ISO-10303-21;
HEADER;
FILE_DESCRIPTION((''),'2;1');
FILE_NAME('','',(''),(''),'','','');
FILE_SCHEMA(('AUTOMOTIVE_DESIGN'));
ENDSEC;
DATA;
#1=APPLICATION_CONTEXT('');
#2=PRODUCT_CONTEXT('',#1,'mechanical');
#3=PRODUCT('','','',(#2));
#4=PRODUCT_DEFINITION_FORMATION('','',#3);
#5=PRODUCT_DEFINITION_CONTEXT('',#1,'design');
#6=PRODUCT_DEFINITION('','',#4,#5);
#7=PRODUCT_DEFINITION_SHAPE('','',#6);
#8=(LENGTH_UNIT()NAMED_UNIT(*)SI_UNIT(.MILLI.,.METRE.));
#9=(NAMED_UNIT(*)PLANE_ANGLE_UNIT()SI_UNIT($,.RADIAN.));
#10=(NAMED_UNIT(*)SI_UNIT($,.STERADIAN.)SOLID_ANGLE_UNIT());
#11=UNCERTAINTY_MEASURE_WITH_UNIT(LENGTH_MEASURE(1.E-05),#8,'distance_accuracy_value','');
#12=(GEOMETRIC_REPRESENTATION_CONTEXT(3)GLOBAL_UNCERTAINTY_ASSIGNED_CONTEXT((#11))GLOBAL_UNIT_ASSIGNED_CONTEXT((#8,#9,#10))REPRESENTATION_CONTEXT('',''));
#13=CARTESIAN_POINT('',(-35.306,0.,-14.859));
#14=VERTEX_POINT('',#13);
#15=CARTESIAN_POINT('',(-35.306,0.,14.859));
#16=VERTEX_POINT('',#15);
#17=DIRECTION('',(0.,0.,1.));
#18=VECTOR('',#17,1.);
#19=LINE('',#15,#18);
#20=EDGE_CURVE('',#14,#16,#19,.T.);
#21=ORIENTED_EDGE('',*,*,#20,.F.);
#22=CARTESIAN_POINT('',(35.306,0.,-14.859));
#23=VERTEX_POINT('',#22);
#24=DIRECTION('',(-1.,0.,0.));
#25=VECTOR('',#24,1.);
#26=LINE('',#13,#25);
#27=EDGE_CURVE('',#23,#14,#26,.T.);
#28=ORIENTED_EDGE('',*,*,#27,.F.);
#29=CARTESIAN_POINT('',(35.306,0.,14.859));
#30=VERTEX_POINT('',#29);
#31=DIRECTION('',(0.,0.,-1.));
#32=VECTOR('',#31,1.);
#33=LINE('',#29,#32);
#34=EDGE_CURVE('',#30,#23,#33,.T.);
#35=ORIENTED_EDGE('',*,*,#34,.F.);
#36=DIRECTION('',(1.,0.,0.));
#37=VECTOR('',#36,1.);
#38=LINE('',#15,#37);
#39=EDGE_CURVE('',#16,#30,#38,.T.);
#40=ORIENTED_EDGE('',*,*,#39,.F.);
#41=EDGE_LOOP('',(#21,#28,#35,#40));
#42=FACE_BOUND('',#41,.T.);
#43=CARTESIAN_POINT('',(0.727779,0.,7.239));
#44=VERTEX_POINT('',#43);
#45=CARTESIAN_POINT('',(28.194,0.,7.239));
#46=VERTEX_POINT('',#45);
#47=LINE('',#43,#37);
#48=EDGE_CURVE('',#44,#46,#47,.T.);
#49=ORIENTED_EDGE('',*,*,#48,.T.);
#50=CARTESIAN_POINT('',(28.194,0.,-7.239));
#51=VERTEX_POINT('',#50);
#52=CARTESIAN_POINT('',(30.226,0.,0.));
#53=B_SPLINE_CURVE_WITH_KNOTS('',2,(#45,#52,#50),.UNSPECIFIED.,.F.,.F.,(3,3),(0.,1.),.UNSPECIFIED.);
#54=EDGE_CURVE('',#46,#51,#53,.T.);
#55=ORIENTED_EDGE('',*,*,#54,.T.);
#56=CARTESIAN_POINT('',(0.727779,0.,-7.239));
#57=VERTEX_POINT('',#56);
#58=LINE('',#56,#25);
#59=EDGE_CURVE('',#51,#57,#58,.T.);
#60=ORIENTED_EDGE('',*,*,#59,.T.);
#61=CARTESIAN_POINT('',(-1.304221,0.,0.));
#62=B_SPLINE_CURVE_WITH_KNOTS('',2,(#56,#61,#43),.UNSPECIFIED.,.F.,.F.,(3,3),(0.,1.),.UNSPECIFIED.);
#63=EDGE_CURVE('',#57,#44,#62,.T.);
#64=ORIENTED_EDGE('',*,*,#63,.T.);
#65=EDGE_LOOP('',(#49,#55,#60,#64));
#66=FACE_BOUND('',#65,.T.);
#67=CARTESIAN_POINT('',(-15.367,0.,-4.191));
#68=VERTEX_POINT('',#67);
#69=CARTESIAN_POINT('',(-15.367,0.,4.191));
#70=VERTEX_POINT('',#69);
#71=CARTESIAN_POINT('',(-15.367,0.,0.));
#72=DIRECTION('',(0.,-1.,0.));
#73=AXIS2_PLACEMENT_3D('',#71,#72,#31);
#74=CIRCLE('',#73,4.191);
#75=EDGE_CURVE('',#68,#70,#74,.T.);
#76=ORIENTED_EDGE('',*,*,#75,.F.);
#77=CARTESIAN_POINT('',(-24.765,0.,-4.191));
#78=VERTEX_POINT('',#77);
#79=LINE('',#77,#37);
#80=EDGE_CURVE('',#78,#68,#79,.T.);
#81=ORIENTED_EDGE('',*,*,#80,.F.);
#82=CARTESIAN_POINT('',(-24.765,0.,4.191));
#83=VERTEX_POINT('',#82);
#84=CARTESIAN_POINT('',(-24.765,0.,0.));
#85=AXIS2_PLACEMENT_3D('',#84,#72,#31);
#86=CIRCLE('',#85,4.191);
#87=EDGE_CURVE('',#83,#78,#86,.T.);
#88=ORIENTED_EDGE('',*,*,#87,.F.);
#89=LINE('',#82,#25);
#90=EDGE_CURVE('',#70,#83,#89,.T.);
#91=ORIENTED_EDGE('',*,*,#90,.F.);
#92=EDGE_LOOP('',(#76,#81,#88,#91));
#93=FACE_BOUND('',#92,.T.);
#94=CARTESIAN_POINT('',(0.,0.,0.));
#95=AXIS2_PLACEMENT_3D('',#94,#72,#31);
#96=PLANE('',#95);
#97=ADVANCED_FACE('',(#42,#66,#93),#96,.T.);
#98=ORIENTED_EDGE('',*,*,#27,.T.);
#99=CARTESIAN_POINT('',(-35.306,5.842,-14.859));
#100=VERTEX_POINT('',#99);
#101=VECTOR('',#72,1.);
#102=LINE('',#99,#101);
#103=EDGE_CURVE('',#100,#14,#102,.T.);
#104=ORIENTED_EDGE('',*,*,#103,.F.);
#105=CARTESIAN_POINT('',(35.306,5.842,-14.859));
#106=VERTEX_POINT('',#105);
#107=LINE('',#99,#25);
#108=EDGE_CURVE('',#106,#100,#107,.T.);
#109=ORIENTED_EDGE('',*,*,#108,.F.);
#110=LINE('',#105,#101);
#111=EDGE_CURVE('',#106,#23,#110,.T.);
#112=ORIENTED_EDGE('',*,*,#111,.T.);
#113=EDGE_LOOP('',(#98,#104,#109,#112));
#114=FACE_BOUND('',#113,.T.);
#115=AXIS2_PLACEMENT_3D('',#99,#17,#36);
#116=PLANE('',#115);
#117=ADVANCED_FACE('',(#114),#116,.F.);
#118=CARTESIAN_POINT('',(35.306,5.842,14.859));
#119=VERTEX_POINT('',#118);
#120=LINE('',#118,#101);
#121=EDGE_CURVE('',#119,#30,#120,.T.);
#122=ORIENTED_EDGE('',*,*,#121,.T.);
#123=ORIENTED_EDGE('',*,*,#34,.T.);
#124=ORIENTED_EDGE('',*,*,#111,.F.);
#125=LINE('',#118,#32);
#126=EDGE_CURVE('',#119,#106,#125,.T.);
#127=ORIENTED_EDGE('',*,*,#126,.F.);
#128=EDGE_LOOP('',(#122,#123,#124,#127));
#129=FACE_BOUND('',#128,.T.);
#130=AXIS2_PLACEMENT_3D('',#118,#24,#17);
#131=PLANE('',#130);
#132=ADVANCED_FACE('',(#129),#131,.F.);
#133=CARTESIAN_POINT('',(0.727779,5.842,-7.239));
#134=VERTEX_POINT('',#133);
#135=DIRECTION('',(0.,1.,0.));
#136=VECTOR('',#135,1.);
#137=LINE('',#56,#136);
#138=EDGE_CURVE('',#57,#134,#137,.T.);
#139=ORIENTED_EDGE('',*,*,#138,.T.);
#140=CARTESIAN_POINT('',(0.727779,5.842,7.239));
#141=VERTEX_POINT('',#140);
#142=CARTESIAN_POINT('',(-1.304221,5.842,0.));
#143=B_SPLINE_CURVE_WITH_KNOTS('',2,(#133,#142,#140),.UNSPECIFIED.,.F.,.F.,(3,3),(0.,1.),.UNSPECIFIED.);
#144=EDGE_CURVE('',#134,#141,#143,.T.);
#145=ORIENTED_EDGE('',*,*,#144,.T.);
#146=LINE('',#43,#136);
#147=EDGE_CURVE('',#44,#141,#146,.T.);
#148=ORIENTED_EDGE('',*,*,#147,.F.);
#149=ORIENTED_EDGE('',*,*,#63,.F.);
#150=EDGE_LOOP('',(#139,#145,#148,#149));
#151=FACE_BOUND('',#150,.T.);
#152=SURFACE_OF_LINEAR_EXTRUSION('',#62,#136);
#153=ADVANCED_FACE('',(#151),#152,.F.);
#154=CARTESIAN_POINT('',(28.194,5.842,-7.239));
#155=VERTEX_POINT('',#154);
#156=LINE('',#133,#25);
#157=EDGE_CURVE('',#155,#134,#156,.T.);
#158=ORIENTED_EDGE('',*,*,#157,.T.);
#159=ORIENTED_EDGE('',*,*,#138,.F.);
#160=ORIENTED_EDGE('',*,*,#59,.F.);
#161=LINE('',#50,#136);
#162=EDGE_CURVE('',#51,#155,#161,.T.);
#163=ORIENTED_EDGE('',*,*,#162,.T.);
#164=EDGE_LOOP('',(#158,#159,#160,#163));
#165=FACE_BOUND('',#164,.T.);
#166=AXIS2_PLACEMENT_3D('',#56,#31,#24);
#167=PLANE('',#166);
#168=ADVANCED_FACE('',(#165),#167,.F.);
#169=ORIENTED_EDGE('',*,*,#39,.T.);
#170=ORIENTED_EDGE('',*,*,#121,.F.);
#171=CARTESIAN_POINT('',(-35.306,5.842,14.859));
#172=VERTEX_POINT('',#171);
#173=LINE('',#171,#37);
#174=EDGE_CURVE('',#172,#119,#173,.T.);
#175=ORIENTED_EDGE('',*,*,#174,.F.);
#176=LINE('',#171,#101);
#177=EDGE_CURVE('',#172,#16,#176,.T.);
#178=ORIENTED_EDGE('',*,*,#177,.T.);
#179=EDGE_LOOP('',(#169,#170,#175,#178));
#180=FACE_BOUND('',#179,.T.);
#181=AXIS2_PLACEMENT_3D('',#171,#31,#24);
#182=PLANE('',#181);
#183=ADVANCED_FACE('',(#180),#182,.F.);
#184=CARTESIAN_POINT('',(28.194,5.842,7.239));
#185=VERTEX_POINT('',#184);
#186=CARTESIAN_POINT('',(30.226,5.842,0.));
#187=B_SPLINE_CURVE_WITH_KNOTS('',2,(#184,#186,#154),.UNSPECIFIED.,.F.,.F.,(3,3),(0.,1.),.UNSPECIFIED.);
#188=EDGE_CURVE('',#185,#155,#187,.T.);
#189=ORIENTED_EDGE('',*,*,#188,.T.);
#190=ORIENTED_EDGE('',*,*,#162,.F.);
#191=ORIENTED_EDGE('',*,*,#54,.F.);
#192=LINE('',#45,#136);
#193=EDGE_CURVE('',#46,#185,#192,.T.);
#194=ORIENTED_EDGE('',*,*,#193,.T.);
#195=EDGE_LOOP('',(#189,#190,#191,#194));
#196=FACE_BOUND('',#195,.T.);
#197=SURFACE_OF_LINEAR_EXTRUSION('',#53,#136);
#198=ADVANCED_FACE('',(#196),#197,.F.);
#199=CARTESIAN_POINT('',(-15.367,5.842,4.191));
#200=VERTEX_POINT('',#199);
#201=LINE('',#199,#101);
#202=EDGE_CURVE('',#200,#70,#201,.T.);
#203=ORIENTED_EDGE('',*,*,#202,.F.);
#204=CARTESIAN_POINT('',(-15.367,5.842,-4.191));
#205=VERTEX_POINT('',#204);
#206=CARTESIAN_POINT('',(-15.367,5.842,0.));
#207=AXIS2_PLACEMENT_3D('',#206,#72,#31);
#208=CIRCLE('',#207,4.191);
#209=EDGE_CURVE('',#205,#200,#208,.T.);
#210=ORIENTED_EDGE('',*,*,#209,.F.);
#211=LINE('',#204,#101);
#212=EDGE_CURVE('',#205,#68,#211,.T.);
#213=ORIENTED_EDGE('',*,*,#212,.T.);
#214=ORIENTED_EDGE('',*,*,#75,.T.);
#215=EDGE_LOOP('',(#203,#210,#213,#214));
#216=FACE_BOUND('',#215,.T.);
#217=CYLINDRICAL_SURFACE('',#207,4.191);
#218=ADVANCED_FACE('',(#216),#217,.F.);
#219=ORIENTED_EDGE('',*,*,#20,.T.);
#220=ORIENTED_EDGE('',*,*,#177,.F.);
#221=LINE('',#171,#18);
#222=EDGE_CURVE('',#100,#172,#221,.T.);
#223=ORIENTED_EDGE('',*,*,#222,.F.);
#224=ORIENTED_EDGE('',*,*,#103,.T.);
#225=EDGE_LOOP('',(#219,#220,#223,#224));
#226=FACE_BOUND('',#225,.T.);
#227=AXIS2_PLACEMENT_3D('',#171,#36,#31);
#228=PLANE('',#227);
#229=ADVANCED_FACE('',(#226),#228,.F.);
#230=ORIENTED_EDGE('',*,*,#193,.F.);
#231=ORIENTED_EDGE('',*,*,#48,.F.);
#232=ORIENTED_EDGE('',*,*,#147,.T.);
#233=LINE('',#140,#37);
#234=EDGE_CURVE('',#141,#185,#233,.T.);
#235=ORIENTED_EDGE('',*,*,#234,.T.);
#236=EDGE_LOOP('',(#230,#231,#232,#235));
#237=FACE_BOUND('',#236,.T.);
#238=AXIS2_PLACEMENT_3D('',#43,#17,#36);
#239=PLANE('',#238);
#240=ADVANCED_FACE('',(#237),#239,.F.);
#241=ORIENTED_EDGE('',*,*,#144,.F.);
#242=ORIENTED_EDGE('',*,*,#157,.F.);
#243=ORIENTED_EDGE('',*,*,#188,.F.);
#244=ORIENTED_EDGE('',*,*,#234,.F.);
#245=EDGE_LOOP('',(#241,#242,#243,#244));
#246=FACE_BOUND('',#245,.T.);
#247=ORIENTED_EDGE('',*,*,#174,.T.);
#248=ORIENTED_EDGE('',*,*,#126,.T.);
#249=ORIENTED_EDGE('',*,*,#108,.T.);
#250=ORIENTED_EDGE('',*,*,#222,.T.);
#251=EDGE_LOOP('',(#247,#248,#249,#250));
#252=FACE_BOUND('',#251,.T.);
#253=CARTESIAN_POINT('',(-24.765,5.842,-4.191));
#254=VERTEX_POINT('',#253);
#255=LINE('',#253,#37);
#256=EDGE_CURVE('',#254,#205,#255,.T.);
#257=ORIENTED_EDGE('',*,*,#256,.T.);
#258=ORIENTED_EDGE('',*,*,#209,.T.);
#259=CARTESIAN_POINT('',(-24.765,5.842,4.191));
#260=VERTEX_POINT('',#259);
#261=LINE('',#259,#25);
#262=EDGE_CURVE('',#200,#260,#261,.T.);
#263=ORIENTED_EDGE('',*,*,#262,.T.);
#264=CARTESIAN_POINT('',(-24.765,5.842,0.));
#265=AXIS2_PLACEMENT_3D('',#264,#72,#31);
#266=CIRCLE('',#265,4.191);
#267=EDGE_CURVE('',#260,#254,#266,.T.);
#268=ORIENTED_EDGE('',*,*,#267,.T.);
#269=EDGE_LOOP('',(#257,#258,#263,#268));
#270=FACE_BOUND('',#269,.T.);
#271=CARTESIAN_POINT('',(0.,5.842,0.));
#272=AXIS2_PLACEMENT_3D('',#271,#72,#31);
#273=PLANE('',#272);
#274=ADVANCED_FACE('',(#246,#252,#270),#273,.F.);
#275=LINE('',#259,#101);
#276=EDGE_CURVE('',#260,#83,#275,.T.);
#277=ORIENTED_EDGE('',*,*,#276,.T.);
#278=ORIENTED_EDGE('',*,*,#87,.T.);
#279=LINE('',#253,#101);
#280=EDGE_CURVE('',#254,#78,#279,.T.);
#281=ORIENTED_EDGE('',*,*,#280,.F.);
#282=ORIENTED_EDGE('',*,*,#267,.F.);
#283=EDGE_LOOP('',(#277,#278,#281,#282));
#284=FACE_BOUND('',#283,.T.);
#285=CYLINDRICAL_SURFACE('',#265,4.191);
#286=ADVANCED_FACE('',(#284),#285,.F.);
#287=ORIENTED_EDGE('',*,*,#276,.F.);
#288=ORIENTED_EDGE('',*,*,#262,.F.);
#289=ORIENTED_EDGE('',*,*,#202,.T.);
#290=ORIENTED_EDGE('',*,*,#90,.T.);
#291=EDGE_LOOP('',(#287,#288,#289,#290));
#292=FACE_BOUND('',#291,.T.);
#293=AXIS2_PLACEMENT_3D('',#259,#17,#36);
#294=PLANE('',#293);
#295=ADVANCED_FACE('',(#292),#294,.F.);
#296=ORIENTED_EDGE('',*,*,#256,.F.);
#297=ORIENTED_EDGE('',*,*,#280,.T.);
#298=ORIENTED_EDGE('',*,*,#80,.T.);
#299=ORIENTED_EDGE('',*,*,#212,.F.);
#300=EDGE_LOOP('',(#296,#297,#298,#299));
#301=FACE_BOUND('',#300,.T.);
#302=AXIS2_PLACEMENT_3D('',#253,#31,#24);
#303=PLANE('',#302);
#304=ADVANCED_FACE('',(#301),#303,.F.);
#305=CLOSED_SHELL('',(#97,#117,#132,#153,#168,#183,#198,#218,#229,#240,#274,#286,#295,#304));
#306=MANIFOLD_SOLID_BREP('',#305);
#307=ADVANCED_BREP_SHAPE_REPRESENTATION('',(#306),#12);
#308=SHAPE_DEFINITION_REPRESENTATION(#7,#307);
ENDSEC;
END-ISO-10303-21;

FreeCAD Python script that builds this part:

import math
import FreeCAD as App
import Part
import Sketcher

V = App.Vector
Q = App.Units.Quantity


def add_polygon(sketch, points):
    """Adds a closed chain of lines whose ends are joined by coincident constraints."""
    first, n = sketch.GeometryCount, len(points)
    for a, b in zip(points, points[1:] + points[:1]):
        sketch.addGeometry(Part.LineSegment(App.Vector(*a, 0), App.Vector(*b, 0)), False)
    for i in range(n):
        sketch.addConstraint(Sketcher.Constraint("Coincident", first + i, 2, first + (i + 1) % n, 1))

doc = App.newDocument("Part")
body = doc.addObject("PartDesign::Body", "Body")

sketch1 = body.newObject("Sketcher::SketchObject", "Sketch")
sketch1.AttachmentSupport = (doc.getObject("XZ_Plane"), [""])
sketch1.MapMode = "FlatFace"
add_polygon(sketch1, [(-35, -15), (-35, 15), (35, 15), (35, -15)])
sketch1.addConstraint([
    Sketcher.Constraint("Vertical", 0),
    Sketcher.Constraint("Horizontal", 1),
    Sketcher.Constraint("Vertical", 2),
    Sketcher.Constraint("Horizontal", 3),
    Sketcher.Constraint("Symmetric", 0, 2, 2, 2, -1, 1),
    Sketcher.Constraint("DistanceX", 1, 1, 1, 2, Q("2.78 in")),
    Sketcher.Constraint("DistanceY", 0, 1, 0, 2, Q("1.17 in")),
])
pad1 = body.newObject("PartDesign::Pad", "Pad")
pad1.Profile = sketch1
pad1.Length = Q("0.23 in")
pad1.Reversed = True

sketch2 = body.newObject("Sketcher::SketchObject", "Sketch001")
sketch2.AttachmentSupport = (doc.getObject("XZ_Plane"), [""])
sketch2.MapMode = "FlatFace"
sketch2.AttachmentOffset = App.Placement(V(0, 0, -0.23 * 25.4), App.Rotation())
sketch2.addGeometry([
    Part.LineSegment(V(28.194, -7.239, 0), V(0.727779, -7.239, 0)),
    Part.BSplineCurve([V(0.727779, 7.239, 0), V(-1.304221, 0, 0), V(0.727779, -7.239, 0)], [3, 3], [0, 1], False, 2, [1, 1, 1], False),
    Part.LineSegment(V(0.727779, 7.239, 0), V(28.194, 7.239, 0)),
    Part.BSplineCurve([V(28.194, 7.239, 0), V(30.226, 0, 0), V(28.194, -7.239, 0)], [3, 3], [0, 1], False, 2, [1, 1, 1], False),
], False)
sketch2.addConstraint([
    Sketcher.Constraint("Block", 1),
    Sketcher.Constraint("Block", 3),
    Sketcher.Constraint("Coincident", 0, 2, 1, 2),
    Sketcher.Constraint("Coincident", 1, 1, 2, 1),
    Sketcher.Constraint("Coincident", 2, 2, 3, 1),
    Sketcher.Constraint("Coincident", 3, 2, 0, 1),
])
pocket1 = body.newObject("PartDesign::Pocket", "Pocket")
pocket1.Profile = sketch2
pocket1.Type = "ThroughAll"
pocket1.Reversed = True

sketch3 = body.newObject("Sketcher::SketchObject", "Sketch002")
sketch3.AttachmentSupport = (doc.getObject("XZ_Plane"), [""])
sketch3.MapMode = "FlatFace"
sketch3.addGeometry([
    Part.LineSegment(V(-15.4, 4.2, 0), V(-24.8, 4.2, 0)),
    Part.ArcOfCircle(Part.Circle(V(-24.8, 0, 0), V(0, 0, 1), 4.2), math.radians(90), math.radians(270)),
    Part.LineSegment(V(-24.8, -4.2, 0), V(-15.4, -4.2, 0)),
    Part.ArcOfCircle(Part.Circle(V(-15.4, 0, 0), V(0, 0, 1), 4.2), math.radians(-90), math.radians(90)),
], False)
sketch3.addConstraint([
    Sketcher.Constraint("Tangent", 0, 2, 1, 1),
    Sketcher.Constraint("Tangent", 1, 2, 2, 1),
    Sketcher.Constraint("Tangent", 2, 2, 3, 1),
    Sketcher.Constraint("Tangent", 3, 2, 0, 1),
    Sketcher.Constraint("Horizontal", 0),
    Sketcher.Constraint("Horizontal", 2),
    Sketcher.Constraint("PointOnObject", 1, 3, -1),
    Sketcher.Constraint("Radius", 1, Q("0.165 in")),
    Sketcher.Constraint("DistanceX", 0, 2, 0, 1, Q("0.37 in")),
    Sketcher.Constraint("DistanceX", 1, 3, -1, 1, Q("0.975 in")),
])
pocket2 = body.newObject("PartDesign::Pocket", "Pocket001")
pocket2.Profile = sketch3
pocket2.Type = "ThroughAll"

doc.recompute()
